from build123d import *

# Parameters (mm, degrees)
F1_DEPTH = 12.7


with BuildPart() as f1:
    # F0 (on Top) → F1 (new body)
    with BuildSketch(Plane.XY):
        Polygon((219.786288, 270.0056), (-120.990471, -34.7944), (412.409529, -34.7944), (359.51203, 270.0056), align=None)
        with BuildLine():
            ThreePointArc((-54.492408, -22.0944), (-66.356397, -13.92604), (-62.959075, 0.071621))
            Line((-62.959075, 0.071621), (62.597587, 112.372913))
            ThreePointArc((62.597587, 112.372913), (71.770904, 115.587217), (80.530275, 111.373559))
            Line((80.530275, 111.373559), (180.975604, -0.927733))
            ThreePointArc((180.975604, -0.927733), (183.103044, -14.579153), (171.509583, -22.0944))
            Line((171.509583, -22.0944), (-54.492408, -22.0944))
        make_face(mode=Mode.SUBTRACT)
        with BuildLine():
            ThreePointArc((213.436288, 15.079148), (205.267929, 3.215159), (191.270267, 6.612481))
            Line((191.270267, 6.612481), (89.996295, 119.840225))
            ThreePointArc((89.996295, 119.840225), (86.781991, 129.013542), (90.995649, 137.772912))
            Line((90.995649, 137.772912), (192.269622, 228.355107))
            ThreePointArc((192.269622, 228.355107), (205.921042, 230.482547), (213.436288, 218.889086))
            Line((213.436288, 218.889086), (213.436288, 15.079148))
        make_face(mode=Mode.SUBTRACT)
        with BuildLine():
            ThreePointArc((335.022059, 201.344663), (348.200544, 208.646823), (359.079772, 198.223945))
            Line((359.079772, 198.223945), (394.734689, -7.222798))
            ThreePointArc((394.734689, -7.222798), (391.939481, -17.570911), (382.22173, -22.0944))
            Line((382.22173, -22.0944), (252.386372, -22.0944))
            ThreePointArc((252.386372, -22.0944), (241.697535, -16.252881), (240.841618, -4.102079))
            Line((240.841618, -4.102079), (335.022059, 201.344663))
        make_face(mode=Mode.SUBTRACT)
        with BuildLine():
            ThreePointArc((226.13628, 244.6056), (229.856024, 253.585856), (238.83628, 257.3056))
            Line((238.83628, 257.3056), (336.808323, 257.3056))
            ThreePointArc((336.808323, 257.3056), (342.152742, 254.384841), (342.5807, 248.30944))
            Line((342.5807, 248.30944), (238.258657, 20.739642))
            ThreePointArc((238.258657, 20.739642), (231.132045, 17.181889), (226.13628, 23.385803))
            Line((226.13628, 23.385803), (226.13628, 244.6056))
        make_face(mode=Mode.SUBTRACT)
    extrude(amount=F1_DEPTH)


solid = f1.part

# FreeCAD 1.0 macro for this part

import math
import FreeCAD as App
import Part
import Sketcher
Q = App.Units.Quantity


def add_polygon(sketch, points):
    """Adds a closed chain of lines whose ends are joined by coincident constraints."""
    first, n = sketch.GeometryCount, len(points)
    for a, b in zip(points, points[1:] + points[:1]):
        sketch.addGeometry(Part.LineSegment(App.Vector(*a, 0), App.Vector(*b, 0)), False)
    for i in range(n):
        sketch.addConstraint(Sketcher.Constraint("Coincident", first + i, 2, first + (i + 1) % n, 1))

doc = App.newDocument("Part")
body = doc.addObject("PartDesign::Body", "Body")

sketch1 = body.newObject("Sketcher::SketchObject", "Sketch")
sketch1.AttachmentSupport = (doc.getObject("XY_Plane"), [""])
sketch1.MapMode = "FlatFace"
add_polygon(sketch1, [(220, 270), (-121, -35), (412, -35), (360, 270)])
sketch1.addGeometry(Part.LineSegment(App.Vector(172, -22, 0), App.Vector(-54, -22, 0)), False)
sketch1.addGeometry(Part.ArcOfCircle(Part.Circle(App.Vector(-54, -9, 0), App.Vector(0, 0, 1), 13), math.radians(132), math.radians(270)), False)
sketch1.addGeometry(Part.LineSegment(App.Vector(-63, 0, 0), App.Vector(63, 112, 0)), False)
sketch1.addGeometry(Part.ArcOfCircle(Part.Circle(App.Vector(71, 103, 0), App.Vector(0, 0, 1), 13), math.radians(42), math.radians(132)), False)
sketch1.addGeometry(Part.LineSegment(App.Vector(81, 111, 0), App.Vector(181, -1, 0)), False)
sketch1.addGeometry(Part.ArcOfCircle(Part.Circle(App.Vector(172, -9, 0), App.Vector(0, 0, 1), 13), math.radians(-90), math.radians(42)), False)
sketch1.addGeometry(Part.LineSegment(App.Vector(213, 219, 0), App.Vector(213, 15, 0)), False)
sketch1.addGeometry(Part.ArcOfCircle(Part.Circle(App.Vector(201, 15, 0), App.Vector(0, 0, 1), 13), math.radians(-138), math.radians(0)), False)
sketch1.addGeometry(Part.LineSegment(App.Vector(191, 7, 0), App.Vector(90, 120, 0)), False)
sketch1.addGeometry(Part.ArcOfCircle(Part.Circle(App.Vector(99, 128, 0), App.Vector(0, 0, 1), 13), math.radians(132), math.radians(222)), False)
sketch1.addGeometry(Part.LineSegment(App.Vector(91, 138, 0), App.Vector(192, 228, 0)), False)
sketch1.addGeometry(Part.ArcOfCircle(Part.Circle(App.Vector(201, 219, 0), App.Vector(0, 0, 1), 13), math.radians(0), math.radians(132)), False)
sketch1.addGeometry(Part.LineSegment(App.Vector(241, -4, 0), App.Vector(335, 201, 0)), False)
sketch1.addGeometry(Part.ArcOfCircle(Part.Circle(App.Vector(347, 196, 0), App.Vector(0, 0, 1), 13), math.radians(10), math.radians(155)), False)
sketch1.addGeometry(Part.LineSegment(App.Vector(359, 198, 0), App.Vector(395, -7, 0)), False)
sketch1.addGeometry(Part.ArcOfCircle(Part.Circle(App.Vector(382, -9, 0), App.Vector(0, 0, 1), 13), math.radians(-90), math.radians(10)), False)
sketch1.addGeometry(Part.LineSegment(App.Vector(382, -22, 0), App.Vector(252, -22, 0)), False)
sketch1.addGeometry(Part.ArcOfCircle(Part.Circle(App.Vector(252, -9, 0), App.Vector(0, 0, 1), 13), math.radians(155), math.radians(270)), False)
sketch1.addGeometry(Part.LineSegment(App.Vector(226, 23, 0), App.Vector(226, 245, 0)), False)
sketch1.addGeometry(Part.ArcOfCircle(Part.Circle(App.Vector(239, 245, 0), App.Vector(0, 0, 1), 13), math.radians(90), math.radians(180)), False)
sketch1.addGeometry(Part.LineSegment(App.Vector(239, 257, 0), App.Vector(337, 257, 0)), False)
sketch1.addGeometry(Part.ArcOfCircle(Part.Circle(App.Vector(337, 251, 0), App.Vector(0, 0, 1), 6), math.radians(-25), math.radians(90)), False)
sketch1.addGeometry(Part.LineSegment(App.Vector(343, 248, 0), App.Vector(238, 21, 0)), False)
sketch1.addGeometry(Part.ArcOfCircle(Part.Circle(App.Vector(232, 23, 0), App.Vector(0, 0, 1), 6), math.radians(-180), math.radians(-25)), False)
sketch1.addConstraint([
    Sketcher.Constraint("Tangent", 4, 2, 5, 2),
    Sketcher.Constraint("Tangent", 5, 1, 6, 1),
    Sketcher.Constraint("Tangent", 6, 2, 7, 2),
    Sketcher.Constraint("Tangent", 7, 1, 8, 1),
    Sketcher.Constraint("Tangent", 8, 2, 9, 2),
    Sketcher.Constraint("Tangent", 9, 1, 4, 1),
    Sketcher.Constraint("Tangent", 10, 2, 11, 2),
    Sketcher.Constraint("Tangent", 11, 1, 12, 1),
    Sketcher.Constraint("Tangent", 12, 2, 13, 2),
    Sketcher.Constraint("Tangent", 13, 1, 14, 1),
    Sketcher.Constraint("Tangent", 14, 2, 15, 2),
    Sketcher.Constraint("Tangent", 15, 1, 10, 1),
    Sketcher.Constraint("Tangent", 16, 2, 17, 2),
    Sketcher.Constraint("Tangent", 17, 1, 18, 1),
    Sketcher.Constraint("Tangent", 18, 2, 19, 2),
    Sketcher.Constraint("Tangent", 19, 1, 20, 1),
    Sketcher.Constraint("Tangent", 20, 2, 21, 2),
    Sketcher.Constraint("Tangent", 21, 1, 16, 1),
    Sketcher.Constraint("Tangent", 22, 2, 23, 2),
    Sketcher.Constraint("Tangent", 23, 1, 24, 1),
    Sketcher.Constraint("Tangent", 24, 2, 25, 2),
    Sketcher.Constraint("Tangent", 25, 1, 26, 1),
    Sketcher.Constraint("Tangent", 26, 2, 27, 2),
    Sketcher.Constraint("Tangent", 27, 1, 22, 1),
    Sketcher.Constraint("Horizontal", 1),
    Sketcher.Constraint("Horizontal", 3),
    Sketcher.Constraint("Horizontal", 4),
    Sketcher.Constraint("Vertical", 10),
    Sketcher.Constraint("Horizontal", 20),
    Sketcher.Constraint("Vertical", 22),
    Sketcher.Constraint("Horizontal", 24),
    Sketcher.Constraint("Equal", 5, 7),
    Sketcher.Constraint("Equal", 7, 9),
    Sketcher.Constraint("Equal", 9, 11),
    Sketcher.Constraint("Equal", 11, 13),
    Sketcher.Constraint("Equal", 13, 15),
    Sketcher.Constraint("Equal", 15, 17),
    Sketcher.Constraint("Equal", 17, 19),
    Sketcher.Constraint("Equal", 19, 21),
    Sketcher.Constraint("Equal", 21, 23),
    Sketcher.Constraint("Equal", 25, 27),
    Sketcher.Constraint("Parallel", 0, 6),
    Sketcher.Constraint("Perpendicular", 6, 8),
    Sketcher.Constraint("Parallel", 8, 12),
    Sketcher.Constraint("Perpendicular", 12, 14),
    Sketcher.Constraint("Parallel", 2, 18),
    Sketcher.Constraint("Parallel", 16, 26),
    Sketcher.Constraint("Horizontal", 9, 3, 19, 3),
    Sketcher.Constraint("Radius", 5, Q("0.5 in")),
    Sketcher.Constraint("DistanceX", 1, 1, 1, 2, Q("21 in")),
    Sketcher.Constraint("Radius", 25, Q("0.25 in")),
    Sketcher.Constraint("Distance", 0, Q("18 in")),
    Sketcher.Constraint("DistanceY", 7, 3, 13, 3, Q("1 in")),
    Sketcher.Constraint("DistanceY", 0, 2, 5, 3, Q("1 in")),
    Sketcher.Constraint("DistanceY", 23, 3, 2, 2, Q("1 in")),
    Sketcher.Constraint("DistanceY", 19, 3, 25, 3, Q("10.2500001 in")),
    Sketcher.Constraint("DistanceX", 15, 3, 3, 2, Q("0.75 in")),
    Sketcher.Constraint("DistanceY", 21, 1, 27, 3, Q("1.0822001 in")),
    Sketcher.Constraint("DistanceX", 3, 2, 3, 1, 139.725742),
    Sketcher.Constraint("DistanceX", 4, 2, 4, 1, 226.001991),
    Sketcher.Constraint("DistanceY", 5, 3, -1, 1, 9.3944),
    Sketcher.Constraint("DistanceX", -1, 1, 25, 1, 342.5807),
    Sketcher.Constraint("DistanceY", 18, 2, 27, 3, 30.608601),
    Sketcher.Constraint("DistanceX", 10, 2, 18, 2, 181.298401),
    Sketcher.Constraint("Distance", 12, 151.910959),
    Sketcher.Constraint("Distance", 16, 226.005131),
    Sketcher.Constraint("DistanceX", -1, 1, 11, 3, 200.736288),
    Sketcher.Constraint("DistanceX", 7, 3, 13, 3, 28.398062),
])
pad1 = body.newObject("PartDesign::Pad", "Pad")
pad1.Profile = sketch1
pad1.Length = Q("0.5 in")

doc.recompute()
